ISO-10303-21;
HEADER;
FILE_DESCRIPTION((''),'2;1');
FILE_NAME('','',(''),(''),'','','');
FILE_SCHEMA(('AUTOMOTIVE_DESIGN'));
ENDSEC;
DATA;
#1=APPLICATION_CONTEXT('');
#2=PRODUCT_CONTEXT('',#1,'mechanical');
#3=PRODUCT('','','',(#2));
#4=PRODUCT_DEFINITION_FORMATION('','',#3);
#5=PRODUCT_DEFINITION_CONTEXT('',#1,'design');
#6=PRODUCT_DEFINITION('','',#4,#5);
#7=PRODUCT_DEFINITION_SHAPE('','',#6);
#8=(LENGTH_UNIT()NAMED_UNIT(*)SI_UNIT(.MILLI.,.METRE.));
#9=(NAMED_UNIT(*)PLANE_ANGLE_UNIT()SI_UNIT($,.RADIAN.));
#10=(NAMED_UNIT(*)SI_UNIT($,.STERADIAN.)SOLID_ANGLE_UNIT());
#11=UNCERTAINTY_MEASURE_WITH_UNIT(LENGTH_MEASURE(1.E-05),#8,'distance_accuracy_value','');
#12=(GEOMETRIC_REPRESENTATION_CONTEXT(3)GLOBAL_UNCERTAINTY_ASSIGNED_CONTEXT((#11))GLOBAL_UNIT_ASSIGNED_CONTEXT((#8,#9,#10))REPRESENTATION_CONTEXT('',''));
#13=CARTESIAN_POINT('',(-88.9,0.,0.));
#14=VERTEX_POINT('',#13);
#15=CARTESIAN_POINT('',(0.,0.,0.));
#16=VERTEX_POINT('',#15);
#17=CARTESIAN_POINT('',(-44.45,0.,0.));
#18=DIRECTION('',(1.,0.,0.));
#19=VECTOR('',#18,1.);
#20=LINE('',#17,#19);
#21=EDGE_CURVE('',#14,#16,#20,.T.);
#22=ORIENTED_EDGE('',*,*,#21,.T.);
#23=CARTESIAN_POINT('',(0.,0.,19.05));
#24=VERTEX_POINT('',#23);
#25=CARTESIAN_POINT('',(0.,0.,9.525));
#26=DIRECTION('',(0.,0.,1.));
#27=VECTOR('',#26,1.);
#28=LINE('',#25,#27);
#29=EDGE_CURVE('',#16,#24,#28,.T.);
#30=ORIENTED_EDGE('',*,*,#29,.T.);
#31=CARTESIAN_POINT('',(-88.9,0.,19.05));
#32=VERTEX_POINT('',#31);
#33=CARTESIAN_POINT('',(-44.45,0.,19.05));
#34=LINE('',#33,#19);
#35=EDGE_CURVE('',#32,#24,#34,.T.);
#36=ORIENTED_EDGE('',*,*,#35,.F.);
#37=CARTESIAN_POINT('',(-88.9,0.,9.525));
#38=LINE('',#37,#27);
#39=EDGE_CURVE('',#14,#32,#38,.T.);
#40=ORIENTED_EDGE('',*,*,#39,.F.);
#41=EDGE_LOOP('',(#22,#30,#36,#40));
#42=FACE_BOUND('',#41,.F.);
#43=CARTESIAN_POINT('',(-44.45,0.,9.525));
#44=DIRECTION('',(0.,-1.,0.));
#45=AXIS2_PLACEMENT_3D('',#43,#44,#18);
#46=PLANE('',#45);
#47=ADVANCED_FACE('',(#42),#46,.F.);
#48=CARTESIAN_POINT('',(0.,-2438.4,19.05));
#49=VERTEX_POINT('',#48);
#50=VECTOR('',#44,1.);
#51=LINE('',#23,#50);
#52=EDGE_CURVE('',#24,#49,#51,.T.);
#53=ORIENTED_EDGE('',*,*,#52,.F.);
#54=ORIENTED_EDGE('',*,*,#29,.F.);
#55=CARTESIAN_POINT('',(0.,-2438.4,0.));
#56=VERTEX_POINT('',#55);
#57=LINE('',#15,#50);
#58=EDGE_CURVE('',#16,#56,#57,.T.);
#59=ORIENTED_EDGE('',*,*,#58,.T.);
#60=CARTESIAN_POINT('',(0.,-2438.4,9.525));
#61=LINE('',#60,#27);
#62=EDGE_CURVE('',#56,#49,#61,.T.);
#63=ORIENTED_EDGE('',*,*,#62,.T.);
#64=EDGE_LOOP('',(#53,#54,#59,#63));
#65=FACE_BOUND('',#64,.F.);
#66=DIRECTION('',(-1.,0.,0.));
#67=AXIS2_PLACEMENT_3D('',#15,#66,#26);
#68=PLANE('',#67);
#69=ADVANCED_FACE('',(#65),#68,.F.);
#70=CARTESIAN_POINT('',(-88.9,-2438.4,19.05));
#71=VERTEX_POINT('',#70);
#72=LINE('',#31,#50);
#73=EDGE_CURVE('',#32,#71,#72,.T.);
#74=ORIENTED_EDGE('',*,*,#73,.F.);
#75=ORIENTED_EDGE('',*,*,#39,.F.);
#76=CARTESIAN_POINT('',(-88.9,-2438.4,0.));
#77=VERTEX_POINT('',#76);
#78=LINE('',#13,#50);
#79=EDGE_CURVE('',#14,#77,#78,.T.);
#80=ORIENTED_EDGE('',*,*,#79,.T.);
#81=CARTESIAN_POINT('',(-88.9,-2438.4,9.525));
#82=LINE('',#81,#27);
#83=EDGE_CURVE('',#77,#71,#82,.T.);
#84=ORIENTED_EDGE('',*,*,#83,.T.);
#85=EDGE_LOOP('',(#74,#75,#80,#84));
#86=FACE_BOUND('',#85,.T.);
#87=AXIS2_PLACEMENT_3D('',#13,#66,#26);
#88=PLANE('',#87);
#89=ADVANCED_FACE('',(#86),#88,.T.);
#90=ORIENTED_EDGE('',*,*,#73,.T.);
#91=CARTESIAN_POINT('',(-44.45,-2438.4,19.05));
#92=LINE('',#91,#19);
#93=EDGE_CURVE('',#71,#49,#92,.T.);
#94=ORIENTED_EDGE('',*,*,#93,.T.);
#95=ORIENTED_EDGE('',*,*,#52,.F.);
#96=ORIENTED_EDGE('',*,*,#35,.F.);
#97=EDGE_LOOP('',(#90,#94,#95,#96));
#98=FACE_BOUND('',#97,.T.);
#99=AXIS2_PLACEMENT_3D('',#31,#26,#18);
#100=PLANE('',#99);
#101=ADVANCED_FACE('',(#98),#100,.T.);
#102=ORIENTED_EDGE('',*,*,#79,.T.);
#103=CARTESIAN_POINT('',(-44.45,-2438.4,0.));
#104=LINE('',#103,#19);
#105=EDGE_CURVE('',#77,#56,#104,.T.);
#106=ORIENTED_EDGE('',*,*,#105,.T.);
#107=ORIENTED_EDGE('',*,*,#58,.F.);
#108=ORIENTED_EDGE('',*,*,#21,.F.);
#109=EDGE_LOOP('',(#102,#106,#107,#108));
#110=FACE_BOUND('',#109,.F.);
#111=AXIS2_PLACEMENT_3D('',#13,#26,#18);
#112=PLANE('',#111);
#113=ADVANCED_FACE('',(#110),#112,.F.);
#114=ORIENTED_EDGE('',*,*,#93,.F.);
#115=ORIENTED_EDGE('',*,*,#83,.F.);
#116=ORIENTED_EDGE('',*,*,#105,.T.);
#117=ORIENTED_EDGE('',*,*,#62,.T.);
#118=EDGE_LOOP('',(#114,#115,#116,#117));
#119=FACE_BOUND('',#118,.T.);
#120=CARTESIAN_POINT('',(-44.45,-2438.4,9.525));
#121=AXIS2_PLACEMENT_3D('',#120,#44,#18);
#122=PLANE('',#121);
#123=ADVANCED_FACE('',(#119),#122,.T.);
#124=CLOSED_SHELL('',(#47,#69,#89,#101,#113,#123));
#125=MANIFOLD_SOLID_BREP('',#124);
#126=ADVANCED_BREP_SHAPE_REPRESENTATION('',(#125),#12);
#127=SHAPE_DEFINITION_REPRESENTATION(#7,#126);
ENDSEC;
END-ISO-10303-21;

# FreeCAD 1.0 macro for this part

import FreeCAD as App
import Part
import Sketcher

V = App.Vector
Q = App.Units.Quantity

doc = App.newDocument("Part")
params = doc.addObject("Spreadsheet::Sheet", "Params")
for row, (alias, value) in enumerate([
    ("sketch1_width", "3.5 in"),
    ("sketch1_height", "0.75 in"),
    ("pad1_length", "96 in"),
], start=1):
    params.set(f"A{row}", alias)
    params.set(f"B{row}", "=" + value)
    params.setAlias(f"B{row}", alias)

body = doc.addObject("PartDesign::Body", "Body")

# Sketch on XZ plane
sketch1 = body.newObject("Sketcher::SketchObject", "Sketch")
sketch1.AttachmentSupport = (doc.getObject("XZ_Plane"), [""])
sketch1.MapMode = "FlatFace"
sketch1.addGeometry([
    Part.LineSegment(V(-88.9, 19.05, 0), V(-88.9, 0, 0)),
    Part.LineSegment(V(-88.9, 0, 0), V(0, 0, 0)),
    Part.LineSegment(V(0, 0, 0), V(0, 19.05, 0)),
    Part.LineSegment(V(0, 19.05, 0), V(-88.9, 19.05, 0)),
], False)
sketch1.addConstraint([
    Sketcher.Constraint("Coincident", 0, 2, 1, 1),
    Sketcher.Constraint("Coincident", 1, 2, 2, 1),
    Sketcher.Constraint("Coincident", 2, 2, 3, 1),
    Sketcher.Constraint("Coincident", 3, 2, 0, 1),
    Sketcher.Constraint("Vertical", 0),
    Sketcher.Constraint("Horizontal", 1),
    Sketcher.Constraint("Vertical", 2),
    Sketcher.Constraint("Horizontal", 3),
    Sketcher.Constraint("Coincident", 1, 2, -1, 1),
    Sketcher.Constraint("DistanceX", 1, 1, 1, 2, Q("3.5 in")),
    Sketcher.Constraint("DistanceY", 0, 2, 0, 1, Q("0.75 in")),
])
sketch1.setExpression("Constraints[9]", "Params.sketch1_width")
sketch1.setExpression("Constraints[10]", "Params.sketch1_height")
pad1 = body.newObject("PartDesign::Pad", "Pad")
pad1.Profile = sketch1
pad1.setExpression("Length", "Params.pad1_length")

doc.recompute()
